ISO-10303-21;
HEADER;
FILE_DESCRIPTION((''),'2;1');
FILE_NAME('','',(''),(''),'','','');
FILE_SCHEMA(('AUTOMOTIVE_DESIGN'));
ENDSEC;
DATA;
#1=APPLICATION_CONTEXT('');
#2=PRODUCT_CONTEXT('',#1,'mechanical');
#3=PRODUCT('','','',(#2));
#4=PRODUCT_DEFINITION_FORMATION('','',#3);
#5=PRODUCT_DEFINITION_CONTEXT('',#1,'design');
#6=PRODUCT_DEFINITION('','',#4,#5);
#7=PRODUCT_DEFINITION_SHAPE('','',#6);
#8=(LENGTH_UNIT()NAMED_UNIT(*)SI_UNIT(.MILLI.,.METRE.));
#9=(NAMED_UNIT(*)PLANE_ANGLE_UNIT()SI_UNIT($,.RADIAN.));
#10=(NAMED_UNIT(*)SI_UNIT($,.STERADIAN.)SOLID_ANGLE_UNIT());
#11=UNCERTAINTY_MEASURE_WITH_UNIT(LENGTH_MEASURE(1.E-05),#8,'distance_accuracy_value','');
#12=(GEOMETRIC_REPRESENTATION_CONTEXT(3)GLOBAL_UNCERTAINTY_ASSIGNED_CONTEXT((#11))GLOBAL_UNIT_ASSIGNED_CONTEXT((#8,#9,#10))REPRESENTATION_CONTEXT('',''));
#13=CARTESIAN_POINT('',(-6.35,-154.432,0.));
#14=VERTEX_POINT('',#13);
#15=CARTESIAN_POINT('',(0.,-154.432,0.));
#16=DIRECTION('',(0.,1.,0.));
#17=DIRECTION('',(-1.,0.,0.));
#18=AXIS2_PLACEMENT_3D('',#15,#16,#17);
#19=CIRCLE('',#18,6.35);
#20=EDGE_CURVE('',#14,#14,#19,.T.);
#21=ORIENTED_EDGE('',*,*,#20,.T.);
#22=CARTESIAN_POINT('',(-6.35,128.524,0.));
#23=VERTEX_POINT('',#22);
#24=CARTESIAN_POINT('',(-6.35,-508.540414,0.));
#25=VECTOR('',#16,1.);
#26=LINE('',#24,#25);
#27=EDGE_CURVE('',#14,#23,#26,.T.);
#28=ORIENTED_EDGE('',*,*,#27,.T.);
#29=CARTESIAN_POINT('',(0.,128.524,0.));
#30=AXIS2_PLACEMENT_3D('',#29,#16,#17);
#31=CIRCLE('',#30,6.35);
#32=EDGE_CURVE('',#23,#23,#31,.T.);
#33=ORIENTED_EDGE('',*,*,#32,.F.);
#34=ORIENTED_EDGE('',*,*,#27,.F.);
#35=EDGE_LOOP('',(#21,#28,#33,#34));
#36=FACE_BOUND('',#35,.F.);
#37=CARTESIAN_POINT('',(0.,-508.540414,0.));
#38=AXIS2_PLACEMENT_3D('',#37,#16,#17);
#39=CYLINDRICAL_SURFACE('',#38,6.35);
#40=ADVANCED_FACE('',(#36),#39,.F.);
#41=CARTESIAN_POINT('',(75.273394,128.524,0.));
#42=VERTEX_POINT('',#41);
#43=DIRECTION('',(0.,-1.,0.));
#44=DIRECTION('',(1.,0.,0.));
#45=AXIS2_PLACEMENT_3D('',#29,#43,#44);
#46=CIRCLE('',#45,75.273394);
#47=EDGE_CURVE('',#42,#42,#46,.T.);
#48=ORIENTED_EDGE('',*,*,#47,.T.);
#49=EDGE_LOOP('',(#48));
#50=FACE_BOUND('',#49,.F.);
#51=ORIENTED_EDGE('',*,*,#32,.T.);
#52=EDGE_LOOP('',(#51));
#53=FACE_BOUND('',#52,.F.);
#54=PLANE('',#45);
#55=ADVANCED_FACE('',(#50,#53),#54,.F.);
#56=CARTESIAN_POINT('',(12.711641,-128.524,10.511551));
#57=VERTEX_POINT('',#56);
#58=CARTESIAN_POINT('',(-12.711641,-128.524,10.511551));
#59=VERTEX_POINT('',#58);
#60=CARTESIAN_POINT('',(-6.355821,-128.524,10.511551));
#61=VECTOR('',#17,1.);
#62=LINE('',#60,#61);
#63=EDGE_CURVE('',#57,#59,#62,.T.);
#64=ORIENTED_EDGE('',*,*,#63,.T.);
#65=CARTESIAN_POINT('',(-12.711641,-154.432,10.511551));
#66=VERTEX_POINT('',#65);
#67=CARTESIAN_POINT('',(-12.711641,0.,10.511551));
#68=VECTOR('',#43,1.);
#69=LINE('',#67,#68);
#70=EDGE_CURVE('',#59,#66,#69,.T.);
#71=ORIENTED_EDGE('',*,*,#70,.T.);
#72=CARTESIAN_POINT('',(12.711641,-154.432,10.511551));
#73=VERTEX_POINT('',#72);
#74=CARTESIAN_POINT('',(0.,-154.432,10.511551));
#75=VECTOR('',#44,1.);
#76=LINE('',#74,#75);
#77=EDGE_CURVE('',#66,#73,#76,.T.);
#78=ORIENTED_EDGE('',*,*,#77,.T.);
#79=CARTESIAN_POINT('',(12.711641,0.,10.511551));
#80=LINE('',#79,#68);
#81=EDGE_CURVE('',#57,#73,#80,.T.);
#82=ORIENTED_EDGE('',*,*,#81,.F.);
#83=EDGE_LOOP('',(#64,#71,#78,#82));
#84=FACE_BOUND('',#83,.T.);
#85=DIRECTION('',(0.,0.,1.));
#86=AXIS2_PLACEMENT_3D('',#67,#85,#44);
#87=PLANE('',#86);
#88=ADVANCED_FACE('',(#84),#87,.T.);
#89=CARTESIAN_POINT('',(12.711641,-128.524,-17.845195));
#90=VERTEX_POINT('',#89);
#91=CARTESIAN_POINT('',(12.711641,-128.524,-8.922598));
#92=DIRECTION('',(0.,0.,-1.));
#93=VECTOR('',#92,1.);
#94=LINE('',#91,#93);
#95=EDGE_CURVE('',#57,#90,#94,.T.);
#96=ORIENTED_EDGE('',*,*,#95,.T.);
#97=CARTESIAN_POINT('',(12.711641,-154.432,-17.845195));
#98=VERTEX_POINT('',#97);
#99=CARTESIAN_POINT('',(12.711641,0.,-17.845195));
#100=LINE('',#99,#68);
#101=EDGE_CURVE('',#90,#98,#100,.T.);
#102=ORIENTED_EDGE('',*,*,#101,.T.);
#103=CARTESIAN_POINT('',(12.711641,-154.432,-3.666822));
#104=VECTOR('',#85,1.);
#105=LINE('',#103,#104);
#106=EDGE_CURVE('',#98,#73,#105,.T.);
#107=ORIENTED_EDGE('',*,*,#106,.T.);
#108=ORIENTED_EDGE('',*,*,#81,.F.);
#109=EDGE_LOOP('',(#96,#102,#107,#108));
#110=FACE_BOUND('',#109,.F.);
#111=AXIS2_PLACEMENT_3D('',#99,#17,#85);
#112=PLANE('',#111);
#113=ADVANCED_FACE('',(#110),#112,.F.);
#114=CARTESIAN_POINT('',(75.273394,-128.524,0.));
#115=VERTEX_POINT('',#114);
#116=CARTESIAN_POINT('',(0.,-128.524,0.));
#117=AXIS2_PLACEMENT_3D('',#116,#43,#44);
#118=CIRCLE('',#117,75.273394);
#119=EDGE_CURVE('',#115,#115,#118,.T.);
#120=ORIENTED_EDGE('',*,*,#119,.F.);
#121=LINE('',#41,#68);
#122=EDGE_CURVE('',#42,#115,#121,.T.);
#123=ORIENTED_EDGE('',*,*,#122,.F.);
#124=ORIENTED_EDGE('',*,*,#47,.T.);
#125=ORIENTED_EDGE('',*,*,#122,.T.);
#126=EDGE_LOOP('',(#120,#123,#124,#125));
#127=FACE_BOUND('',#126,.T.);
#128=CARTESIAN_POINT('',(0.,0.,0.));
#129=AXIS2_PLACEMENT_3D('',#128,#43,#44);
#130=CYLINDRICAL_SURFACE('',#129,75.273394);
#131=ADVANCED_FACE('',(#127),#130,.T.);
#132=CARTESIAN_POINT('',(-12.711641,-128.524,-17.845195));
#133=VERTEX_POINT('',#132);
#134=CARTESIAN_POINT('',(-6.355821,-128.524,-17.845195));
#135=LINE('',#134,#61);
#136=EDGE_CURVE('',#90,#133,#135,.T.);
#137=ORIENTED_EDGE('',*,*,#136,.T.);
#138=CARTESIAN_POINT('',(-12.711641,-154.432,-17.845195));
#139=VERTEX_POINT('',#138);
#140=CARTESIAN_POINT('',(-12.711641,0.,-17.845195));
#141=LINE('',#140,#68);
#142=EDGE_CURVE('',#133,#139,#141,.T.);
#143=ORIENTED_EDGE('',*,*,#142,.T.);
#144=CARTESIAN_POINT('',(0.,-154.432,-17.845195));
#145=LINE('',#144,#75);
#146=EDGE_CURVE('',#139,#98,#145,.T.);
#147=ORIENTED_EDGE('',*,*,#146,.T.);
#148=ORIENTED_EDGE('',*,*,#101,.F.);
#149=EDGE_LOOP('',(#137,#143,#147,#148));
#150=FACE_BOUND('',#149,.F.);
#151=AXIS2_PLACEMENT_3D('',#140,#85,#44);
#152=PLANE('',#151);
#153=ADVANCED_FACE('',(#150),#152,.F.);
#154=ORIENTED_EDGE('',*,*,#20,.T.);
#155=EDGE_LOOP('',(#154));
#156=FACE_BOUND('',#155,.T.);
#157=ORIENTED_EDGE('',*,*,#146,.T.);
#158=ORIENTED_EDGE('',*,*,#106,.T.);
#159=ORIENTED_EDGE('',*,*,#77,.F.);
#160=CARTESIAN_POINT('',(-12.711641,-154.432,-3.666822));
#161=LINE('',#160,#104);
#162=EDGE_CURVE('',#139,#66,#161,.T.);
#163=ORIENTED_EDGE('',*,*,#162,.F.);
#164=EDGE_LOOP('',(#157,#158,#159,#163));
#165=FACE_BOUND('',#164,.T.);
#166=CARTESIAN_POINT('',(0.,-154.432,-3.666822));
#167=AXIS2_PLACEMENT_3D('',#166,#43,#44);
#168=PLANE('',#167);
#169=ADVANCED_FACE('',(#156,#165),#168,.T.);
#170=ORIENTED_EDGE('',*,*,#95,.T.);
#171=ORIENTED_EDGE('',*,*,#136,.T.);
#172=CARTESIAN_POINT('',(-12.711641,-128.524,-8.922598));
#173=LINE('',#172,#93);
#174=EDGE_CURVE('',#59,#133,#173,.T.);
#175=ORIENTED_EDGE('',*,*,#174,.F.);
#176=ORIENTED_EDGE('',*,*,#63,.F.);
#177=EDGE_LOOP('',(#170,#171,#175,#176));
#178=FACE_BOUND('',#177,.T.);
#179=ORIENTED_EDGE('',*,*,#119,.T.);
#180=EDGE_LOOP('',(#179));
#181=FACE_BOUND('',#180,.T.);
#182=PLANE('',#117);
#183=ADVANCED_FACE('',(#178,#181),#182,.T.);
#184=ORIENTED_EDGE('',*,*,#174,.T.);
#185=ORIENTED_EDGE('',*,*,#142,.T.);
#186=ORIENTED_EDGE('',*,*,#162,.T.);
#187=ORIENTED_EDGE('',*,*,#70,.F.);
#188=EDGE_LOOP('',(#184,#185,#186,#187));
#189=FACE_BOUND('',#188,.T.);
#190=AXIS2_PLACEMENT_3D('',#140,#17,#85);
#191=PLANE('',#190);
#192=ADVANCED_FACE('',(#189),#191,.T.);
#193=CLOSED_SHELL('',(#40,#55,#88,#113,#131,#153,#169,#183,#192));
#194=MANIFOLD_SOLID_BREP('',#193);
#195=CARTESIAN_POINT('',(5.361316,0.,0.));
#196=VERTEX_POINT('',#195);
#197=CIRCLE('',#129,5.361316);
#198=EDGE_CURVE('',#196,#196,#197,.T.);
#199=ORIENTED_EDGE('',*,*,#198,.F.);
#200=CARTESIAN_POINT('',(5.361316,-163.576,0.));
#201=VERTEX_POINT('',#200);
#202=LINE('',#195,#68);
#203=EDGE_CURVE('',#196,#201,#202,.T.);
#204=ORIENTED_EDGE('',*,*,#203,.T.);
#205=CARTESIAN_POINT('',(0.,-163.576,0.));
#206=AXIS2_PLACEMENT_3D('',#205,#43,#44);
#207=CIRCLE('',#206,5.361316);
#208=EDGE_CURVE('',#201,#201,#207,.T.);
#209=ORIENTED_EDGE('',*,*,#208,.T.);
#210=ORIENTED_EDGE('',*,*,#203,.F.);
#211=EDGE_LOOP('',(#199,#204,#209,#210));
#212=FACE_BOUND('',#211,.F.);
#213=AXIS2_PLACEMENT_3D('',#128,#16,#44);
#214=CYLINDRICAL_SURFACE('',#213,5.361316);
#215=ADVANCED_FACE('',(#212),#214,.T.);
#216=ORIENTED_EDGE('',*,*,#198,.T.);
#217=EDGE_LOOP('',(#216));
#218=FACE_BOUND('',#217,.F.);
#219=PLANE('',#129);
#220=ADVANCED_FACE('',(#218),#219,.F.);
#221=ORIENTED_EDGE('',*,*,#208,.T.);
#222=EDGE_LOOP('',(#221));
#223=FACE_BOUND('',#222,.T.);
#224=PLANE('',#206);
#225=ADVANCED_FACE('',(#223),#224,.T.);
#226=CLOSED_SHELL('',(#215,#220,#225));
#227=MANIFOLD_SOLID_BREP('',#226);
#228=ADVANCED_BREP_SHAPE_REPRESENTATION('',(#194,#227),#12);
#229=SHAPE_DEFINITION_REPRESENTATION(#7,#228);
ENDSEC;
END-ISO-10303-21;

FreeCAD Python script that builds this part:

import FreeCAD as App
import Part
import Sketcher
Q = App.Units.Quantity


def add_polygon(sketch, points):
    """Adds a closed chain of lines whose ends are joined by coincident constraints."""
    first, n = sketch.GeometryCount, len(points)
    for a, b in zip(points, points[1:] + points[:1]):
        sketch.addGeometry(Part.LineSegment(App.Vector(*a, 0), App.Vector(*b, 0)), False)
    for i in range(n):
        sketch.addConstraint(Sketcher.Constraint("Coincident", first + i, 2, first + (i + 1) % n, 1))

doc = App.newDocument("Part")
body = doc.addObject("PartDesign::Body", "Body")

# Sketch on XZ plane
sketch1 = doc.addObject("Sketcher::SketchObject", "Sketch")
body.addObject(sketch1)
sketch1.AttachmentSupport = (doc.XZ_Plane, [""])
sketch1.MapMode = "FlatFace"
sketch1.addGeometry(Part.Circle(App.Vector(0, 0, 0), App.Vector(0, 0, 1), 75), False)
sketch1.addConstraint([
    Sketcher.Constraint("Coincident", 0, 3, -1, 1),
    Sketcher.Constraint("Diameter", 0, Q("150.546788 mm")),
])
pad1 = doc.addObject("PartDesign::Pad", "Pad")
body.addObject(pad1)
pad1.Profile = sketch1
pad1.Length = Q("10.12 in")
pad1.Midplane = True

# Sketch on XZ plane
sketch2 = doc.addObject("Sketcher::SketchObject", "Sketch001")
body.addObject(sketch2)
sketch2.AttachmentSupport = (doc.XZ_Plane, [""])
sketch2.MapMode = "FlatFace"
add_polygon(sketch2, [(-13, 11), (-13, -18), (13, -18), (13, 11)])  # lines 0-3
sketch2.addConstraint([
    Sketcher.Constraint("Vertical", 0),
    Sketcher.Constraint("Horizontal", 1),
    Sketcher.Constraint("Vertical", 2),
    Sketcher.Constraint("Horizontal", 3),
    Sketcher.Constraint("DistanceX", 1, 1, 1, 2, Q("25.423282 mm")),
    Sketcher.Constraint("DistanceY", 0, 2, 0, 1, Q("28.356747 mm")),
    Sketcher.Constraint("DistanceX", 0, 2, -1, 1, Q("12.711641 mm")),
    Sketcher.Constraint("DistanceY", -1, 1, 2, 2, Q("10.511551 mm")),
])
pad2 = doc.addObject("PartDesign::Pad", "Pad001")
body.addObject(pad2)
pad2.Profile = sketch2
pad2.Length = Q("6.08 in")

# Sketch on XZ plane
sketch3 = doc.addObject("Sketcher::SketchObject", "Sketch002")
body.addObject(sketch3)
sketch3.AttachmentSupport = (doc.XZ_Plane, [""])
sketch3.MapMode = "FlatFace"
sketch3.AttachmentOffset = App.Placement(App.Vector(0, 0, 6.08 * 25.4), App.Rotation())
sketch3.addGeometry(Part.Circle(App.Vector(0, 0, 0), App.Vector(0, 0, 1), 6), False)
sketch3.addConstraint([
    Sketcher.Constraint("Coincident", 0, 3, -1, 1),
    Sketcher.Constraint("Diameter", 0, Q("0.5 in")),
])
doc.recompute()
hole = doc.addObject("PartDesign::Hole", "Hole")
body.addObject(hole)
hole.Profile = sketch3
hole.ThreadType = "None"
hole.Diameter = Q("0.5 in")
hole.DepthType = "ThroughAll"
body2 = doc.addObject("PartDesign::Body", "Body001")

# Sketch on XZ plane
sketch4 = doc.addObject("Sketcher::SketchObject", "Sketch003")
body2.addObject(sketch4)
sketch4.AttachmentSupport = (doc.getObject("XZ_Plane001"), [""])
sketch4.MapMode = "FlatFace"
sketch4.addGeometry(Part.Circle(App.Vector(0, 0, 0), App.Vector(0, 0, 1), 5), False)
sketch4.addConstraint([
    Sketcher.Constraint("Coincident", 0, 3, -1, 1),
    Sketcher.Constraint("Diameter", 0, Q("10.722632 mm")),
])
pad3 = doc.addObject("PartDesign::Pad", "Pad002")
body2.addObject(pad3)
pad3.Profile = sketch4
pad3.Length = Q("6.44 in")

doc.recompute()
